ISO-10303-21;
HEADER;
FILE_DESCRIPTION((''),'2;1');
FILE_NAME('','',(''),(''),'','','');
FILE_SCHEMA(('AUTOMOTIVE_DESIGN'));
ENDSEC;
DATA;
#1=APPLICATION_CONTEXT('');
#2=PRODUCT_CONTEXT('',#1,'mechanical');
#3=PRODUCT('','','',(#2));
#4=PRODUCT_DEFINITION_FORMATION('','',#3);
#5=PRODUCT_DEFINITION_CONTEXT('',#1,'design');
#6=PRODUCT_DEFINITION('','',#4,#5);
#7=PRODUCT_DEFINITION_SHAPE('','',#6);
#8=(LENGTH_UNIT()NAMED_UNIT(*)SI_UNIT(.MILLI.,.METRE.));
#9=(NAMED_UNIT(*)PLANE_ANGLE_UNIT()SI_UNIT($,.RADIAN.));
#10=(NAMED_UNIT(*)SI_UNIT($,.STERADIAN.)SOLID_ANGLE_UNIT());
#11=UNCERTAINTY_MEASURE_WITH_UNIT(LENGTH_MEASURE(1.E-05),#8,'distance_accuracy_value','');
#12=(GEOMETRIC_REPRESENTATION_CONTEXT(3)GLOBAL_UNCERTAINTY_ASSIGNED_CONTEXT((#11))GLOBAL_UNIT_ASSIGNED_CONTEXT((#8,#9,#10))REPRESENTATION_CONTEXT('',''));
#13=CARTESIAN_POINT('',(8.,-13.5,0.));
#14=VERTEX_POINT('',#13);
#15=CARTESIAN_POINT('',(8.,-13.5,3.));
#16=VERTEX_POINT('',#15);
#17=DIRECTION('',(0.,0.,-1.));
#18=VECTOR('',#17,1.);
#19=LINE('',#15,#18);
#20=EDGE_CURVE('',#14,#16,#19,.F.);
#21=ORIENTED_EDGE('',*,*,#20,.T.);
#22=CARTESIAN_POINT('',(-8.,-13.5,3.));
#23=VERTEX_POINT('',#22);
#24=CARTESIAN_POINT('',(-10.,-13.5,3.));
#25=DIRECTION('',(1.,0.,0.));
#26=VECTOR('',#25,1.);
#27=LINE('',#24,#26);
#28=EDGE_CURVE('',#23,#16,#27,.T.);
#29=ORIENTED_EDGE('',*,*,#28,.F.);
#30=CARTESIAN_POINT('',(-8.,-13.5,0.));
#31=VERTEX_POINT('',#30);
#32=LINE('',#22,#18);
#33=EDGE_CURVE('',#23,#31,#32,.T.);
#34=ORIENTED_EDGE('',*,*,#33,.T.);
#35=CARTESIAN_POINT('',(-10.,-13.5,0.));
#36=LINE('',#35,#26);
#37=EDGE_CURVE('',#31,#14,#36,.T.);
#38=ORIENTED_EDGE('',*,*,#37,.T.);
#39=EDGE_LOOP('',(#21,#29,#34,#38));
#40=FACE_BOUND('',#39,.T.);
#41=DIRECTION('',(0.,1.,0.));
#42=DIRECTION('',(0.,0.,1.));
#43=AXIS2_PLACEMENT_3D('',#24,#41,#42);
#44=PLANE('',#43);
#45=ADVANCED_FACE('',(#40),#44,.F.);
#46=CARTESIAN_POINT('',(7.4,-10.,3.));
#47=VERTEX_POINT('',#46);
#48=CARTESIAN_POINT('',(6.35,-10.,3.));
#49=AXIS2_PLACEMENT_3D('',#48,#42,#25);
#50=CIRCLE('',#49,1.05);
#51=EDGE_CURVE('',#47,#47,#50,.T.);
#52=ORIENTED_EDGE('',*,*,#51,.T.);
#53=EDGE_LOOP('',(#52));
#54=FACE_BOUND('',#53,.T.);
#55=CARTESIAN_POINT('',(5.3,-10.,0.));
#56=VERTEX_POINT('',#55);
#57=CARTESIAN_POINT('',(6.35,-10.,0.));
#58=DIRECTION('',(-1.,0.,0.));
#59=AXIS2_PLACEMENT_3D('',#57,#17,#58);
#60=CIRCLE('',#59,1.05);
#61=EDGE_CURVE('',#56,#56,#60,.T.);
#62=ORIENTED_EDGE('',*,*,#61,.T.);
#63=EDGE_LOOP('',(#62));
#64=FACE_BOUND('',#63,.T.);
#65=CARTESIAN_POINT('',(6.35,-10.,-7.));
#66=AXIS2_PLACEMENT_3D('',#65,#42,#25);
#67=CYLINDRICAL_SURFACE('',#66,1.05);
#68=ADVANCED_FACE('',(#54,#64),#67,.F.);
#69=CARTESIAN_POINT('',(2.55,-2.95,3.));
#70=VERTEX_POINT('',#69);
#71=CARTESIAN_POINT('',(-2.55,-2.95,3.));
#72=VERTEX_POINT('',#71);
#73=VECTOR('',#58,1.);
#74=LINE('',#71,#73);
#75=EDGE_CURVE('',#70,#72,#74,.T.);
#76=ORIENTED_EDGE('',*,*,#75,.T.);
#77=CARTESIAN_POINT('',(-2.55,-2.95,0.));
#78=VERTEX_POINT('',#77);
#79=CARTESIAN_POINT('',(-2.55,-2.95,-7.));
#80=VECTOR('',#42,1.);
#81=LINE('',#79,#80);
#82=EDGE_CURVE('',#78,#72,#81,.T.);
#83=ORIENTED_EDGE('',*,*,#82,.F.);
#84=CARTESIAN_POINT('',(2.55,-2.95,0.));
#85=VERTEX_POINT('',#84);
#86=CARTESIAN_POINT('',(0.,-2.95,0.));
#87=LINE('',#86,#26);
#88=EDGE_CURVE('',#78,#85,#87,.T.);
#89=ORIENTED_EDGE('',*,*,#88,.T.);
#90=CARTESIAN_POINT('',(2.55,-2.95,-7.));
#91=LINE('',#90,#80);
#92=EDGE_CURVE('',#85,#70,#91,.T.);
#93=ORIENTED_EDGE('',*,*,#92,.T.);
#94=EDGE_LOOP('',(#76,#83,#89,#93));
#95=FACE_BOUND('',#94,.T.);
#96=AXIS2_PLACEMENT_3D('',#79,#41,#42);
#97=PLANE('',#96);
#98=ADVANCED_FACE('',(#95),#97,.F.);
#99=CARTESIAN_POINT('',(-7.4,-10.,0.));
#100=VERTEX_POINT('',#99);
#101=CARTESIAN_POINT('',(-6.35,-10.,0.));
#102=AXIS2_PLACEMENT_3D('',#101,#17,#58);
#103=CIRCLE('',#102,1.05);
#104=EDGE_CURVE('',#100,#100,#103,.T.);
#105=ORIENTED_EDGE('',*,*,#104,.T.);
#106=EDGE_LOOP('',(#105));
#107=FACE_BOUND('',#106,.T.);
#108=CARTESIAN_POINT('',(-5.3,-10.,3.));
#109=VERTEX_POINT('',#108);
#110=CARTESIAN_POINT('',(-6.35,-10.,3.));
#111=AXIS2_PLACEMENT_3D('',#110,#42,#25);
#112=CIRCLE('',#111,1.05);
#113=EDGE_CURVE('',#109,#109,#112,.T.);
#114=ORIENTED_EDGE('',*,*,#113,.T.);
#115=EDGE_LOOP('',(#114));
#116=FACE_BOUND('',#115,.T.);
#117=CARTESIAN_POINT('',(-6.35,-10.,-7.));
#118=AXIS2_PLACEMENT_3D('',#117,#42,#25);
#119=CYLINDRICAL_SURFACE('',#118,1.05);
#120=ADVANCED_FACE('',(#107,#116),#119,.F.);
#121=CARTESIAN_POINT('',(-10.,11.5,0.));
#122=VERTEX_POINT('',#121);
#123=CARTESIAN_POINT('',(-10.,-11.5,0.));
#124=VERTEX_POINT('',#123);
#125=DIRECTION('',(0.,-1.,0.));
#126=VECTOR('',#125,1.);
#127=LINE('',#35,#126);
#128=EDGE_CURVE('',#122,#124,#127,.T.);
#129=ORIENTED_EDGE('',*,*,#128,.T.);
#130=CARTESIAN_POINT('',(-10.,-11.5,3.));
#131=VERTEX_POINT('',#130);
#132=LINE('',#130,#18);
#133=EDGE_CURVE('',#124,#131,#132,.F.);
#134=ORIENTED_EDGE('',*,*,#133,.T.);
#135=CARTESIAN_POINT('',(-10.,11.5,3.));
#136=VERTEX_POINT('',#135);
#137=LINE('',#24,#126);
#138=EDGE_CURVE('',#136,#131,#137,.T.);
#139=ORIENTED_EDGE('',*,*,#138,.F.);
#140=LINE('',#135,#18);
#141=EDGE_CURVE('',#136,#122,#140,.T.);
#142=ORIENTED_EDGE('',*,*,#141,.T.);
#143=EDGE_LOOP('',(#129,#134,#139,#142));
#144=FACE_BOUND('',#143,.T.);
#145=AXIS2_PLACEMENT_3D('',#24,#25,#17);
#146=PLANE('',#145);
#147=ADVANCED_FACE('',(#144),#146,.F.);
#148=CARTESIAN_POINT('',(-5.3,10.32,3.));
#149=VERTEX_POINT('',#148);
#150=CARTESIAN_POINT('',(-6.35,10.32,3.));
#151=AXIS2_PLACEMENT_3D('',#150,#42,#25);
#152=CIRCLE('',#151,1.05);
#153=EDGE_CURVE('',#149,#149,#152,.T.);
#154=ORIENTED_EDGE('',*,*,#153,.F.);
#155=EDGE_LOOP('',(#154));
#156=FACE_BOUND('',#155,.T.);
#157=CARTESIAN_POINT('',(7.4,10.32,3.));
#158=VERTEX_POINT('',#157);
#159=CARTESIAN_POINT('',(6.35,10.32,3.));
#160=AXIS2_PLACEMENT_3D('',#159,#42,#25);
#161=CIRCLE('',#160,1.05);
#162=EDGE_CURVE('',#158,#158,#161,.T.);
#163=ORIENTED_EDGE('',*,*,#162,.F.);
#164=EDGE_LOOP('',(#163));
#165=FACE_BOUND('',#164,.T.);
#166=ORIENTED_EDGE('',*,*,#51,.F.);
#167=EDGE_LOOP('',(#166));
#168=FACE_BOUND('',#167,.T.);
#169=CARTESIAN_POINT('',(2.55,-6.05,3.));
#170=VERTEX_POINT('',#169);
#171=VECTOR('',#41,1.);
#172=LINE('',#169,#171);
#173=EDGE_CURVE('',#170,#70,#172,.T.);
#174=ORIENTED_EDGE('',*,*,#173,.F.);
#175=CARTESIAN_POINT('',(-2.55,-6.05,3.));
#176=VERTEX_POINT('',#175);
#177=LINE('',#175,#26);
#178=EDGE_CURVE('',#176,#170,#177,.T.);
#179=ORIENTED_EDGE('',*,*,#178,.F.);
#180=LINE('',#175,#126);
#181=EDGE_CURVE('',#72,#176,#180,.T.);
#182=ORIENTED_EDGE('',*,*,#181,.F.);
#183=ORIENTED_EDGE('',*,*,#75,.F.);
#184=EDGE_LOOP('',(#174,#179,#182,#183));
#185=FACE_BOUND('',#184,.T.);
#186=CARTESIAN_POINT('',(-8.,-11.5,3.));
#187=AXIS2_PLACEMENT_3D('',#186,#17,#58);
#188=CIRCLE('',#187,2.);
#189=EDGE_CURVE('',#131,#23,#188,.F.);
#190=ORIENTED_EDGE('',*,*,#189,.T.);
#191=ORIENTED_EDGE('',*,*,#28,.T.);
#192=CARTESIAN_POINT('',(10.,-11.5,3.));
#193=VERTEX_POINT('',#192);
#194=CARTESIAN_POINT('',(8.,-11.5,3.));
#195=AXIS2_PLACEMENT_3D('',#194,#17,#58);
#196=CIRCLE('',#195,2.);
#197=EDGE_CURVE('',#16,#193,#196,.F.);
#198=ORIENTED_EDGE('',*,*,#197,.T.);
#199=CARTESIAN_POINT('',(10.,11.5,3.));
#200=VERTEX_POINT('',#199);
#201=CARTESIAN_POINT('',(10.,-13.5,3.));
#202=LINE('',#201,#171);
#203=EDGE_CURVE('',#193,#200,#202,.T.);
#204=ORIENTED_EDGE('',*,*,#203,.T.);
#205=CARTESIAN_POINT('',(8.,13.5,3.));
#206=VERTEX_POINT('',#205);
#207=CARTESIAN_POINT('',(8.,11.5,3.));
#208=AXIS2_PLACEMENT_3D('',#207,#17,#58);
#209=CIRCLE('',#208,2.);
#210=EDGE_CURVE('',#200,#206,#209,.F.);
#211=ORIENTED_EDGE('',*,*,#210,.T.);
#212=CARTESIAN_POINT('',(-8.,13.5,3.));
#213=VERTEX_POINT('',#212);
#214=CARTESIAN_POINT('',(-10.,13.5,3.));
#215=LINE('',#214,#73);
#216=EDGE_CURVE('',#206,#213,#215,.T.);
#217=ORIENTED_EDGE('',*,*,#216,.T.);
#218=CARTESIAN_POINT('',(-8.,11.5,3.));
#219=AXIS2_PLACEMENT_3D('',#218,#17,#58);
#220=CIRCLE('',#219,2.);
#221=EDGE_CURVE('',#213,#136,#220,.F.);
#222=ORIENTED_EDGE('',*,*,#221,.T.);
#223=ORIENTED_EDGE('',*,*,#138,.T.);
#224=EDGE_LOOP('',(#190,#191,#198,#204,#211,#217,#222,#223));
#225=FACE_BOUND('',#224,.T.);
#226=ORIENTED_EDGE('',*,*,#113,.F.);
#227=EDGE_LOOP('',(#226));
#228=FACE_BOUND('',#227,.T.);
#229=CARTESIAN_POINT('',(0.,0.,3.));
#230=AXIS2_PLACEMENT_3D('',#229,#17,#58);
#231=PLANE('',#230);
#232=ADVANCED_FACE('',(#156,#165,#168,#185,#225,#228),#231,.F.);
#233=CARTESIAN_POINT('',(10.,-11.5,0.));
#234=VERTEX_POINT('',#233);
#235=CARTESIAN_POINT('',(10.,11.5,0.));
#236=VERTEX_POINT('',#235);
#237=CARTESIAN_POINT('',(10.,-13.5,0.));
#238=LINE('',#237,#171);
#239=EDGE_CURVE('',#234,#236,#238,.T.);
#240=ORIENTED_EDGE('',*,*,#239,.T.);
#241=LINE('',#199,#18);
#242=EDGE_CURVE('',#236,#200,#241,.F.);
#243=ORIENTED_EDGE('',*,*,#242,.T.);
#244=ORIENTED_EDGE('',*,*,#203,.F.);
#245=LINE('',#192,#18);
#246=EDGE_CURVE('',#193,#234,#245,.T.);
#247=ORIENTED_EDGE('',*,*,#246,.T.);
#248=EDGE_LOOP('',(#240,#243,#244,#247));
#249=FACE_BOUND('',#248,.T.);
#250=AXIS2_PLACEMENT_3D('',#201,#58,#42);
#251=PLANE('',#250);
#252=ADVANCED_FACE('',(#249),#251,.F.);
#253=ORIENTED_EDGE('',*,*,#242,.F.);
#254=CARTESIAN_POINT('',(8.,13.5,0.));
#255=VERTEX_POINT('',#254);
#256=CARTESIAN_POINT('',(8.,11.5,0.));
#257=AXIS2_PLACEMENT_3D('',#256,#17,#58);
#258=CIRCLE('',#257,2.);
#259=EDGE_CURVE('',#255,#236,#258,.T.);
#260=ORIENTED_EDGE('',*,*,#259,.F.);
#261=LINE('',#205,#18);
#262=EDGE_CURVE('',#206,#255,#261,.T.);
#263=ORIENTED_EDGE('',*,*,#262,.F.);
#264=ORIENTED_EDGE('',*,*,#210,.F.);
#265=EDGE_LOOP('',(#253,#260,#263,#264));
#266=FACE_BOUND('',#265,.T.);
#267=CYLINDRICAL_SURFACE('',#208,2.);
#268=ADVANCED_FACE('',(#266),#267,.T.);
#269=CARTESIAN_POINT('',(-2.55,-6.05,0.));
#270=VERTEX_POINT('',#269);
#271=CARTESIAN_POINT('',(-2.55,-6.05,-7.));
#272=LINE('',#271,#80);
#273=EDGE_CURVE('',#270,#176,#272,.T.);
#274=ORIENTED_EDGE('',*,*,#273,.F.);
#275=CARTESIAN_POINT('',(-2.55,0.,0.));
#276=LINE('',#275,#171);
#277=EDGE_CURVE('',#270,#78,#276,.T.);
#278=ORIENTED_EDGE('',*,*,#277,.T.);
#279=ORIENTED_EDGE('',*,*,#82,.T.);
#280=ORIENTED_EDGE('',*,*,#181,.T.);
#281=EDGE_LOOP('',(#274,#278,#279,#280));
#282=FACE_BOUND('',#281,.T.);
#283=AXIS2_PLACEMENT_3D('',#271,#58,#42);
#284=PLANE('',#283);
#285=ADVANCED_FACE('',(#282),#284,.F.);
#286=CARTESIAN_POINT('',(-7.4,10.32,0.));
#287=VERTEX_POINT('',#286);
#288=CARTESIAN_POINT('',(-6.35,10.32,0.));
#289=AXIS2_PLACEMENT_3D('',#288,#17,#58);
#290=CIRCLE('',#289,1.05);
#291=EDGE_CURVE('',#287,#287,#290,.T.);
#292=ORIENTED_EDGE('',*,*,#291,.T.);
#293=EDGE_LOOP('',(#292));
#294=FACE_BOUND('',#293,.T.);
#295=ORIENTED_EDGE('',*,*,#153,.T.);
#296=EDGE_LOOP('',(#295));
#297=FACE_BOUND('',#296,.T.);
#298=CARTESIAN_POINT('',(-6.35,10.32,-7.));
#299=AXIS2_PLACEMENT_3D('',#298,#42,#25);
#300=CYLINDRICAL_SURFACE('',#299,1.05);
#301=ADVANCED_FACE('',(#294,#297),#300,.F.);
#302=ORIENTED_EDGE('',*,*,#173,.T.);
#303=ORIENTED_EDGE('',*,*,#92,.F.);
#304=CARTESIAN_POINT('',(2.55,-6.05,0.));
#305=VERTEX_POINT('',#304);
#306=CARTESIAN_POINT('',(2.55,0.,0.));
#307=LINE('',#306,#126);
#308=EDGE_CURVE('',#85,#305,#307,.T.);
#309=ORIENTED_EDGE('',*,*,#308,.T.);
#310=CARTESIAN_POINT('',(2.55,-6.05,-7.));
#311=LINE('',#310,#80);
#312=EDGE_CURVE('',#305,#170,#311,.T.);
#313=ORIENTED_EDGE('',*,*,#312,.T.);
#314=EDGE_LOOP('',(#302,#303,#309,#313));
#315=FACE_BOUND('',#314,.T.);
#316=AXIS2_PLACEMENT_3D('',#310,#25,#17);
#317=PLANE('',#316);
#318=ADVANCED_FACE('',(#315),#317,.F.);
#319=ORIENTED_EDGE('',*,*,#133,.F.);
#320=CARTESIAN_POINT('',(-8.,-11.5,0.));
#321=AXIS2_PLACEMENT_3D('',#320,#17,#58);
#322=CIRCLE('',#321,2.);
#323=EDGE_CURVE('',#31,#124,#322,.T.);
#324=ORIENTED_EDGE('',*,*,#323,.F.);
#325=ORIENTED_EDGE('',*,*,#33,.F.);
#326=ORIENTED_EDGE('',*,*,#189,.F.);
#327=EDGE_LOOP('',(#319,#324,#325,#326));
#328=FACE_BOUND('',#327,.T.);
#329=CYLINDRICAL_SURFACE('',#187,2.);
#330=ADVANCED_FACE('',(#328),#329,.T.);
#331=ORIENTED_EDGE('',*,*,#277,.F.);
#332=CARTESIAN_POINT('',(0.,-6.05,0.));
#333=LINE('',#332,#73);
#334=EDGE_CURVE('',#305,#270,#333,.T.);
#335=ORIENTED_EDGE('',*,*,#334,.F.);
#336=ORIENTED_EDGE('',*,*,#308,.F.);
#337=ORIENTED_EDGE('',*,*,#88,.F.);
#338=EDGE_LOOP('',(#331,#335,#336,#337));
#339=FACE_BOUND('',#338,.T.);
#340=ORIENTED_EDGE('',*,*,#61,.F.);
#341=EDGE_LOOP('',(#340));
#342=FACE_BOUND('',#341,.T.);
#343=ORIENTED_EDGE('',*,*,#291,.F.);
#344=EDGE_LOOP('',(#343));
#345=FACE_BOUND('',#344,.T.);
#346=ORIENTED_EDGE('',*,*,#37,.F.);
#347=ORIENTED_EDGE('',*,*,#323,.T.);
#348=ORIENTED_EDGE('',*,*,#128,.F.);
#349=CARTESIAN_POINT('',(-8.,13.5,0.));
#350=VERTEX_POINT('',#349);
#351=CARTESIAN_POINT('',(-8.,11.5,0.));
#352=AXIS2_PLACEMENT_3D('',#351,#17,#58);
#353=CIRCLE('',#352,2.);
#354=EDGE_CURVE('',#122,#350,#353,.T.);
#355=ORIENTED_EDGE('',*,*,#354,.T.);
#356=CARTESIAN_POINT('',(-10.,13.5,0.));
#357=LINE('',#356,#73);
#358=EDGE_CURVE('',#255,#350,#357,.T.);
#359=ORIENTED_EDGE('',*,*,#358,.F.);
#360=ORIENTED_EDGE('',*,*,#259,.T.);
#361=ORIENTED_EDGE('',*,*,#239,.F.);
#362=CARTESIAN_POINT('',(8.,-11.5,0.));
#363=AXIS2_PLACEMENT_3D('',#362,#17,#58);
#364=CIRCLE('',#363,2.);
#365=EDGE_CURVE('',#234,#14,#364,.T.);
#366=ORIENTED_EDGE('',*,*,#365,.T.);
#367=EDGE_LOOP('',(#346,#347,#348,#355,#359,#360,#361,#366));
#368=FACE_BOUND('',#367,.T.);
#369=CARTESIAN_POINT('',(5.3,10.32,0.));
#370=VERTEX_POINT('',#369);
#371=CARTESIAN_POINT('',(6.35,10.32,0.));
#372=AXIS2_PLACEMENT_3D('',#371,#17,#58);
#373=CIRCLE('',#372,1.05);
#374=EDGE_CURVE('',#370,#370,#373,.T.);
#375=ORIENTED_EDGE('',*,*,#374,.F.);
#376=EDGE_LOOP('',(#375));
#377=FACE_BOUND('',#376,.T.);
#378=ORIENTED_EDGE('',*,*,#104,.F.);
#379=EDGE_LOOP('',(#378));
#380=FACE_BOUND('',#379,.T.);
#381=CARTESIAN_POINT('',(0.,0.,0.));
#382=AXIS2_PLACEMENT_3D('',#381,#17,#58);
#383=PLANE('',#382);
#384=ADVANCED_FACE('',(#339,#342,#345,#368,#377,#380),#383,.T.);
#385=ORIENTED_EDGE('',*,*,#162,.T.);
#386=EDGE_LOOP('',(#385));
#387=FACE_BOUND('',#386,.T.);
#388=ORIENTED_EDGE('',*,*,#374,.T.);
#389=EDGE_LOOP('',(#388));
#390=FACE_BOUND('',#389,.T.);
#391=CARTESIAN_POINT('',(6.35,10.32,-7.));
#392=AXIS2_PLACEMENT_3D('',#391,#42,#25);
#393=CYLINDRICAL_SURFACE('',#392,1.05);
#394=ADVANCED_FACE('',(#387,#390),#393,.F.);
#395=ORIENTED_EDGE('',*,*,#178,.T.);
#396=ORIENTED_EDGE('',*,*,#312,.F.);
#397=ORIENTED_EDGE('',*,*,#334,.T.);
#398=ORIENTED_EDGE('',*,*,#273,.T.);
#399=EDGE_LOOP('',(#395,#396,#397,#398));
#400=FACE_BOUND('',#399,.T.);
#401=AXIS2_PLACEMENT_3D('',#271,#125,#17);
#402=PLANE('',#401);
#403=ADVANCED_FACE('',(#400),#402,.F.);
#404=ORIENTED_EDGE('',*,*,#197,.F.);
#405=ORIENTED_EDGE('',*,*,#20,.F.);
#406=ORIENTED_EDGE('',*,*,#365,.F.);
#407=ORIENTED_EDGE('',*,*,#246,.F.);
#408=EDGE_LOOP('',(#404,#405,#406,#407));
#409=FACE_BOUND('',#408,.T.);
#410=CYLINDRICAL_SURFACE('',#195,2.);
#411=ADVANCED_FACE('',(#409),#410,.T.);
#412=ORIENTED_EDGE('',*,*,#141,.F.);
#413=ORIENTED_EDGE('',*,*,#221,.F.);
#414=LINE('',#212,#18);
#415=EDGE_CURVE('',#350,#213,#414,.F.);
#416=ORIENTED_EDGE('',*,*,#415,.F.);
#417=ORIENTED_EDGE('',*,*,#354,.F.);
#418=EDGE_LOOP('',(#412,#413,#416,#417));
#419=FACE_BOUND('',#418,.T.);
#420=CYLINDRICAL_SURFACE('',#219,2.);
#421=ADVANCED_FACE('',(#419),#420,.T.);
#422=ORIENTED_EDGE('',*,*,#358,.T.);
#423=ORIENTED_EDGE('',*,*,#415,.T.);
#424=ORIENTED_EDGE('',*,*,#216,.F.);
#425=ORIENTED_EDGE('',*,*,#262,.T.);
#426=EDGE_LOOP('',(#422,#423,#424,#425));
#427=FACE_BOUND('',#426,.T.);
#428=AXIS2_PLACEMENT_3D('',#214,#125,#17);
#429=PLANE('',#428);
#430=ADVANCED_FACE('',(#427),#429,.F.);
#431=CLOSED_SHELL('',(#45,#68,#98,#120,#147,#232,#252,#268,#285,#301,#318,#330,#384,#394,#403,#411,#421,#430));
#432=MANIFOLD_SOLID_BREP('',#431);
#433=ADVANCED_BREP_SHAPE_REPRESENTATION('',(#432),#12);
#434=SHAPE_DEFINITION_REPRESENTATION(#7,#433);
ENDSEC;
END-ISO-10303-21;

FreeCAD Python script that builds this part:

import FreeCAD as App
import Part
import Sketcher
from FreeCAD import Vector


def edges_at(feature, points):
    """Names of the edges that pass closest to the given points."""
    edges = feature.Shape.Edges
    near = lambda p: min(range(len(edges)), key=lambda i: edges[i].distToShape(Part.Vertex(*p))[0])
    return sorted({f"Edge{near(p) + 1}" for p in points})

doc = App.newDocument("Part")
params = doc.addObject("Spreadsheet::Sheet", "Params")
for row, (alias, value) in enumerate([
    ("sketch1_width", "20 mm"),
    ("sketch1_height", "27 mm"),
    ("pad1_length", "3 mm"),
    ("sketch2_width", "5.1 mm"),
    ("sketch2_height", "3.1 mm"),
    ("pocket1_length", "10 mm"),
    ("sketch3_diameter", "2.1 mm"),
    ("pocket2_length", "10 mm"),
    ("fillet_radius", "2 mm"),
], start=1):
    params.set(f"A{row}", alias)
    params.set(f"B{row}", "=" + value)
    params.setAlias(f"B{row}", alias)

body = doc.addObject("PartDesign::Body", "Body")

# Sketch on XY plane
sketch1 = body.newObject("Sketcher::SketchObject", "Sketch")
sketch1.AttachmentSupport = (doc.getObject("XY_Plane"), [""])
sketch1.MapMode = "FlatFace"
sketch1.addGeometry([
    Part.LineSegment(Vector(-10, 14, 0), Vector(-10, -14, 0)),
    Part.LineSegment(Vector(-10, -14, 0), Vector(10, -14, 0)),
    Part.LineSegment(Vector(10, -14, 0), Vector(10, 14, 0)),
    Part.LineSegment(Vector(10, 14, 0), Vector(-10, 14, 0)),
], False)
sketch1.addConstraint([
    Sketcher.Constraint("Coincident", 0, 2, 1, 1),
    Sketcher.Constraint("Coincident", 1, 2, 2, 1),
    Sketcher.Constraint("Coincident", 2, 2, 3, 1),
    Sketcher.Constraint("Coincident", 3, 2, 0, 1),
    Sketcher.Constraint("Vertical", 0),
    Sketcher.Constraint("Horizontal", 1),
    Sketcher.Constraint("Vertical", 2),
    Sketcher.Constraint("Horizontal", 3),
    Sketcher.Constraint("Symmetric", 0, 2, 2, 2, -1, 1),
    Sketcher.Constraint("DistanceX", 1, 1, 1, 2, 20.0),
    Sketcher.Constraint("DistanceY", 0, 2, 0, 1, 27.0),
])
sketch1.setExpression("Constraints[9]", "Params.sketch1_width")
sketch1.setExpression("Constraints[10]", "Params.sketch1_height")
pad1 = body.newObject("PartDesign::Pad", "Pad")
pad1.Profile = sketch1
pad1.setExpression("Length", "Params.pad1_length")

# Sketch on XY plane
sketch2 = body.newObject("Sketcher::SketchObject", "Sketch001")
sketch2.AttachmentSupport = (doc.getObject("XY_Plane"), [""])
sketch2.MapMode = "FlatFace"
sketch2.AttachmentOffset = App.Placement(Vector(0, 0, 3), App.Rotation())
sketch2.addGeometry([
    Part.LineSegment(Vector(-2.5, -3, 0), Vector(-2.5, -6, 0)),
    Part.LineSegment(Vector(-2.5, -6, 0), Vector(2.5, -6, 0)),
    Part.LineSegment(Vector(2.5, -6, 0), Vector(2.5, -3, 0)),
    Part.LineSegment(Vector(2.5, -3, 0), Vector(-2.5, -3, 0)),
], False)
sketch2.addConstraint([
    Sketcher.Constraint("Coincident", 0, 2, 1, 1),
    Sketcher.Constraint("Coincident", 1, 2, 2, 1),
    Sketcher.Constraint("Coincident", 2, 2, 3, 1),
    Sketcher.Constraint("Coincident", 3, 2, 0, 1),
    Sketcher.Constraint("Vertical", 0),
    Sketcher.Constraint("Horizontal", 1),
    Sketcher.Constraint("Vertical", 2),
    Sketcher.Constraint("Horizontal", 3),
    Sketcher.Constraint("DistanceX", 1, 1, 1, 2, 5.1),
    Sketcher.Constraint("DistanceY", 0, 2, 0, 1, 3.1),
    Sketcher.Constraint("DistanceX", 0, 2, -1, 1, 2.55),
    Sketcher.Constraint("DistanceY", 0, 2, -1, 1, 6.05),
])
sketch2.setExpression("Constraints[8]", "Params.sketch2_width")
sketch2.setExpression("Constraints[9]", "Params.sketch2_height")
pocket1 = body.newObject("PartDesign::Pocket", "Pocket")
pocket1.Profile = sketch2
pocket1.setExpression("Length", "Params.pocket1_length")

# Sketch on XY plane
sketch3 = body.newObject("Sketcher::SketchObject", "Sketch002")
sketch3.AttachmentSupport = (doc.getObject("XY_Plane"), [""])
sketch3.MapMode = "FlatFace"
sketch3.AttachmentOffset = App.Placement(Vector(0, 0, 3), App.Rotation())
sketch3.addGeometry([
    Part.Circle(Vector(-6.3, 10.3, 0), Vector(0, 0, 1), 1.1),
    Part.Circle(Vector(6.3, 10.3, 0), Vector(0, 0, 1), 1.1),
    Part.Circle(Vector(6.3, -10, 0), Vector(0, 0, 1), 1.1),
    Part.Circle(Vector(-6.3, -10, 0), Vector(0, 0, 1), 1.1),
], False)
sketch3.addConstraint([
    Sketcher.Constraint("Equal", 0, 1),
    Sketcher.Constraint("Equal", 1, 2),
    Sketcher.Constraint("Equal", 2, 3),
    Sketcher.Constraint("Symmetric", 0, 3, 1, 3, -2),
    Sketcher.Constraint("Symmetric", 2, 3, 3, 3, -2),
    Sketcher.Constraint("Vertical", 1, 3, 2, 3),
    Sketcher.Constraint("Diameter", 0, 2.1),
    Sketcher.Constraint("DistanceY", 2, 3, -1, 1, 10.0),
    Sketcher.Constraint("DistanceX", 0, 3, 1, 3, 12.7),
    Sketcher.Constraint("DistanceY", -1, 1, 0, 3, 10.32),
])
sketch3.setExpression("Constraints[6]", "Params.sketch3_diameter")
pocket2 = body.newObject("PartDesign::Pocket", "Pocket001")
pocket2.Profile = sketch3
pocket2.setExpression("Length", "Params.pocket2_length")
doc.recompute()

fillet = body.newObject("PartDesign::Fillet", "Fillet")
fillet.Base = (pocket2, edges_at(pocket2, [
    (10, -13.5, 1.5),
    (-10, -13.5, 1.5),
    (-10, 13.5, 1.5),
    (10, 13.5, 1.5),
]))
fillet.setExpression("Radius", "Params.fillet_radius")

doc.recompute()
